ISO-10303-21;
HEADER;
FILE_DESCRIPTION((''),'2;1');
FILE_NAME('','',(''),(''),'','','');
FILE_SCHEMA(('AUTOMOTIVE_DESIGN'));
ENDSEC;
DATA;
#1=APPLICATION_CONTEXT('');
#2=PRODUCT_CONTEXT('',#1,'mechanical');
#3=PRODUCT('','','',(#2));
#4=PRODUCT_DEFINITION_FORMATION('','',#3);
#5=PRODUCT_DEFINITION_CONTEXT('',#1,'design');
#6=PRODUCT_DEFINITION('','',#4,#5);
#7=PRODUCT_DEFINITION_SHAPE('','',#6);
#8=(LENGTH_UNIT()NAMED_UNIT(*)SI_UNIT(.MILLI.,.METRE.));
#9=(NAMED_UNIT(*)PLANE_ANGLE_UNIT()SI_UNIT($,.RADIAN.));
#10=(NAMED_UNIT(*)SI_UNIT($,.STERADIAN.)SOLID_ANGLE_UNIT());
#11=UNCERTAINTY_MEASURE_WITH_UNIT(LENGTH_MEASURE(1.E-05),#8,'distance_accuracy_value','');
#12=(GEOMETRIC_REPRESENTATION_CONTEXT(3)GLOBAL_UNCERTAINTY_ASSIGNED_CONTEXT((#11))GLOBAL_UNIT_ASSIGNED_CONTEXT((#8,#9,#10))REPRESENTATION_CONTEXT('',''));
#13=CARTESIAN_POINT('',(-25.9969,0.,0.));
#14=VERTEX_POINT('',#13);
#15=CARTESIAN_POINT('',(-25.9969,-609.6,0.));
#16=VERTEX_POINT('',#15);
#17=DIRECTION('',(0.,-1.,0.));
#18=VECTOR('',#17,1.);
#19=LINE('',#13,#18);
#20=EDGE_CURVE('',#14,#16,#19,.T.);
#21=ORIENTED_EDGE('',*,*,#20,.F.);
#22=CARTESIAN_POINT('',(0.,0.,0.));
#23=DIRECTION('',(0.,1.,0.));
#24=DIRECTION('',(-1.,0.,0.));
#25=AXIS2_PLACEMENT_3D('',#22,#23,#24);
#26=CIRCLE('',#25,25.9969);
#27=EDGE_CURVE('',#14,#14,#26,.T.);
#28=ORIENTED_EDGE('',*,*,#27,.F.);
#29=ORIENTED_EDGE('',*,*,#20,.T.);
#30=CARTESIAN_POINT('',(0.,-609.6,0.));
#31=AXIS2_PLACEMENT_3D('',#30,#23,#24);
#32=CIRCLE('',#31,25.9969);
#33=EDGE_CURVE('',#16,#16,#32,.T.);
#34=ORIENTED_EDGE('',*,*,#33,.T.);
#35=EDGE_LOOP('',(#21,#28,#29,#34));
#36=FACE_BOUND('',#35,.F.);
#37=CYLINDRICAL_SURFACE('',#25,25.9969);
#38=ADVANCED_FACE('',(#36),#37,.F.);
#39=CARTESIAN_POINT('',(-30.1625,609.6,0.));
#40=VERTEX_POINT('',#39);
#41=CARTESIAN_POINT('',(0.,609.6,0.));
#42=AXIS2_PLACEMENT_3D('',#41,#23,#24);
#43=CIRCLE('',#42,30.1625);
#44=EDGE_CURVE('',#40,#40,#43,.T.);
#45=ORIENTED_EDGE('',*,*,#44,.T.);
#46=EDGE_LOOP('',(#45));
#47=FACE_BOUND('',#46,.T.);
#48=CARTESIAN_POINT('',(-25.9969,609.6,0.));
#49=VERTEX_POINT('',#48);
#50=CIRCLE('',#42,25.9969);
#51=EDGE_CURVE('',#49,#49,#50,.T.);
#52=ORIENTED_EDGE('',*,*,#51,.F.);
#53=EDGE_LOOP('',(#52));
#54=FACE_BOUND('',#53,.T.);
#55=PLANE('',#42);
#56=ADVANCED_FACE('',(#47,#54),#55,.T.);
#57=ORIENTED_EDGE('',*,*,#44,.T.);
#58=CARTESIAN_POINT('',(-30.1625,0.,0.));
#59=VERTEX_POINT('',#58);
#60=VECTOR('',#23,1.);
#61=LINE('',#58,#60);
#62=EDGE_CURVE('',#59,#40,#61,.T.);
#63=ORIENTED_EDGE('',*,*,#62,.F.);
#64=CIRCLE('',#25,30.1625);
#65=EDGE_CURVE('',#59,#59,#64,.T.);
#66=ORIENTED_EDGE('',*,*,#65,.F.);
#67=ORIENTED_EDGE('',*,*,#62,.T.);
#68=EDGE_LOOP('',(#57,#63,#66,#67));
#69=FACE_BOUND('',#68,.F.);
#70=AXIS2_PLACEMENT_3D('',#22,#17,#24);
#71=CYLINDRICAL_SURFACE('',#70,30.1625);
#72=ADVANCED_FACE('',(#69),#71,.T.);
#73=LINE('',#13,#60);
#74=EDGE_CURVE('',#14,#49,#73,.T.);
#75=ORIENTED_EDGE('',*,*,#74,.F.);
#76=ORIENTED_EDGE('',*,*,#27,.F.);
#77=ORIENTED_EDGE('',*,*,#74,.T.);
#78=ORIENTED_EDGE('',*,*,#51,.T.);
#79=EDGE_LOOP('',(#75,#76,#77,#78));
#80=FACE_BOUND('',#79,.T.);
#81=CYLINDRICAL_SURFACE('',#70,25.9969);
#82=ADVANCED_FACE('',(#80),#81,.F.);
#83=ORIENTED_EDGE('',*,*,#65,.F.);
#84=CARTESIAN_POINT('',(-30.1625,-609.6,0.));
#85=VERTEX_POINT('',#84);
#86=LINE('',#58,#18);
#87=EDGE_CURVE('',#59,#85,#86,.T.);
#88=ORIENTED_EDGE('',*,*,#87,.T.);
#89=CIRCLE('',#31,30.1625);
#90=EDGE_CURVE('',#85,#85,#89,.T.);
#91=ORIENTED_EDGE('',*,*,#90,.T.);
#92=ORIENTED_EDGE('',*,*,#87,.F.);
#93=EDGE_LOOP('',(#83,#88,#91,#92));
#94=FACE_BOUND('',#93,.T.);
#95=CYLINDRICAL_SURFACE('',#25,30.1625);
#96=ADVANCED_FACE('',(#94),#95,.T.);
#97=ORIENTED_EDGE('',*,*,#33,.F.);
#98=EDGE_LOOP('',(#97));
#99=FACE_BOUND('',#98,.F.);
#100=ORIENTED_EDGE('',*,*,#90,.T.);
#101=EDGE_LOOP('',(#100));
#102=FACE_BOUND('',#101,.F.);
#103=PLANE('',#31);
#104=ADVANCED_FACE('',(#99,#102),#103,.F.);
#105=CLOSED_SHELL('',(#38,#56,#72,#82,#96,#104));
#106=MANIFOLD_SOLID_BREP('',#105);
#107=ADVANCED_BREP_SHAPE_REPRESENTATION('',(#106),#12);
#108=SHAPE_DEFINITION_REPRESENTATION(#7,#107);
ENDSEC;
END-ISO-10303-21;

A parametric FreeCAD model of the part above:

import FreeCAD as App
import Part
import Sketcher

V = App.Vector
Q = App.Units.Quantity

doc = App.newDocument("Part")
body = doc.addObject("PartDesign::Body", "Body")

# Sketch on XZ plane
sketch1 = body.newObject("Sketcher::SketchObject", "Sketch")
sketch1.AttachmentSupport = (doc.getObject("XZ_Plane"), [""])
sketch1.MapMode = "FlatFace"
sketch1.addGeometry(Part.Circle(V(0, 0, 0), V(0, 0, 1), 30), False)
sketch1.addGeometry(Part.Circle(V(0, 0, 0), V(0, 0, 1), 26), False)
sketch1.addConstraint(Sketcher.Constraint("Coincident", 0, 3, -1, 1))
sketch1.addConstraint(Sketcher.Constraint("Coincident", 1, 3, -1, 1))
sketch1.addConstraint(Sketcher.Constraint("Diameter", 0, Q("2.375 in")))
sketch1.addConstraint(Sketcher.Constraint("Diameter", 1, Q("2.047 in")))
pad1 = body.newObject("PartDesign::Pad", "Pad")
pad1.Profile = sketch1
pad1.Length = Q("48 in")
pad1.Midplane = True

doc.recompute()
